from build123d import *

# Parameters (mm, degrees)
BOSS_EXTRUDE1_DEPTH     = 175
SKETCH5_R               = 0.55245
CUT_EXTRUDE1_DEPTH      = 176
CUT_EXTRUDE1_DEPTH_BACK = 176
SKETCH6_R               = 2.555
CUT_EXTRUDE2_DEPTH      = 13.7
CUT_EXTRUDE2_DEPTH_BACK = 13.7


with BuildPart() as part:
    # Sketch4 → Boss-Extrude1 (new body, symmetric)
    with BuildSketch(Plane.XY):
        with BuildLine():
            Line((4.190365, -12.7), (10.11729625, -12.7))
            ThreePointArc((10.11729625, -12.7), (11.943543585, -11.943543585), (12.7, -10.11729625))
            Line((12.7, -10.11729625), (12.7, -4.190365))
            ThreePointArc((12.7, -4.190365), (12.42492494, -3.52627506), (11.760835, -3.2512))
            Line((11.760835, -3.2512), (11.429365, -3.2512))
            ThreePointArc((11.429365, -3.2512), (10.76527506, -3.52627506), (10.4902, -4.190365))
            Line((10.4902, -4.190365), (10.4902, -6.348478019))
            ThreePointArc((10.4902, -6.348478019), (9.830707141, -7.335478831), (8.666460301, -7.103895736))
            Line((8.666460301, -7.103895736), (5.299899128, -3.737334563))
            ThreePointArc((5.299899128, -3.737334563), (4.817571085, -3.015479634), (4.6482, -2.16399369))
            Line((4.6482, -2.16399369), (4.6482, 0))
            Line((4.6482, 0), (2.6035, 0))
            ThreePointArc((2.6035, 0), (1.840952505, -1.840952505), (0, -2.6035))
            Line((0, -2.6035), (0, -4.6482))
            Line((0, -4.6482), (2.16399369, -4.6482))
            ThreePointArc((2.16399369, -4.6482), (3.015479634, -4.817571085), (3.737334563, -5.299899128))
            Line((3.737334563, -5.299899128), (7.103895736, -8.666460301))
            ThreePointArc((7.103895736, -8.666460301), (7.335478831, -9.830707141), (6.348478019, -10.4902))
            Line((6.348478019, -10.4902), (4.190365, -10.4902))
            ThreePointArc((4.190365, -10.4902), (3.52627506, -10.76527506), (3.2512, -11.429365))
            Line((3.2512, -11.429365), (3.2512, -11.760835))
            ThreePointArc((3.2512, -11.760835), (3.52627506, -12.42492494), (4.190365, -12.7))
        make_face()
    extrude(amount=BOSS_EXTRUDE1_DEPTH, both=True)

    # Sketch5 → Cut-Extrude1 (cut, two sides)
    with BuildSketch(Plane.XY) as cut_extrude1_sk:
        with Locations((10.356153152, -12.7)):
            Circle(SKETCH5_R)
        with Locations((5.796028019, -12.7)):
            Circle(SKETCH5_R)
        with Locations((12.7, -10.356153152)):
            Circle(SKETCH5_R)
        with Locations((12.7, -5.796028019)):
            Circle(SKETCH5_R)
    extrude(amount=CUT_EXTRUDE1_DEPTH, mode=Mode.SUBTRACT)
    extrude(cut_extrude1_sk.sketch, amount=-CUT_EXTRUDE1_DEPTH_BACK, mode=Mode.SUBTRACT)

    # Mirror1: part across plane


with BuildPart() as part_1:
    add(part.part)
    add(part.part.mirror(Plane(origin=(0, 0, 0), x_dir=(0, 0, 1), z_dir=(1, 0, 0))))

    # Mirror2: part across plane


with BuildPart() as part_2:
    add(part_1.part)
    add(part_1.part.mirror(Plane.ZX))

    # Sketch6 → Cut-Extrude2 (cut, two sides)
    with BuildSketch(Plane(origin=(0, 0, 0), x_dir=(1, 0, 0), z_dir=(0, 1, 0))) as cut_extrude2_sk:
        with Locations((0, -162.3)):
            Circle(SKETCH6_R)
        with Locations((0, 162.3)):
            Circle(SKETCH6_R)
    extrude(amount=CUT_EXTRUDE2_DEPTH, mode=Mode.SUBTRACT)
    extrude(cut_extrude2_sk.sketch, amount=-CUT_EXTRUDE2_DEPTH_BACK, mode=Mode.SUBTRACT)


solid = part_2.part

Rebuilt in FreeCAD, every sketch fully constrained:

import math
import FreeCAD as App
import Part
import Sketcher

V = App.Vector
Q = App.Units.Quantity

doc = App.newDocument("Part")
body = doc.addObject("PartDesign::Body", "Body")

# Sketch on XY plane
sketch1 = body.newObject("Sketcher::SketchObject", "Sketch")
sketch1.AttachmentSupport = (doc.getObject("XY_Plane"), [""])
sketch1.MapMode = "FlatFace"
sketch1.addGeometry([
    Part.LineSegment(V(4.19, -12.7, 0), V(10.12, -12.7, 0)),  # 0
    Part.ArcOfCircle(Part.Circle(V(10.12, -10.12, 0), V(0, 0, 1), 2.58), math.radians(-90), math.radians(0)),  # 1
    Part.LineSegment(V(12.7, -10.12, 0), V(12.7, -4.19, 0)),  # 2
    Part.ArcOfCircle(Part.Circle(V(11.76, -4.19, 0), V(0, 0, 1), 0.94), math.radians(0), math.radians(90)),  # 3
    Part.LineSegment(V(11.76, -3.25, 0), V(11.43, -3.25, 0)),  # 4
    Part.ArcOfCircle(Part.Circle(V(11.43, -4.19, 0), V(0, 0, 1), 0.94), math.radians(90), math.radians(180)),  # 5
    Part.LineSegment(V(10.49, -4.19, 0), V(10.49, -6.35, 0)),  # 6
    Part.ArcOfCircle(Part.Circle(V(9.42, -6.35, 0), V(0, 0, 1), 1.07), math.radians(-135), math.radians(0)),  # 7
    Part.LineSegment(V(8.67, -7.1, 0), V(5.3, -3.74, 0)),  # 8
    Part.ArcOfCircle(Part.Circle(V(6.87, -2.16, 0), V(0, 0, 1), 2.23), math.radians(-180), math.radians(-135)),  # 9
    Part.LineSegment(V(4.65, -2.16, 0), V(4.65, 0, 0)),  # 10
    Part.LineSegment(V(4.65, 0, 0), V(2.6, 0, 0)),  # 11
    Part.ArcOfCircle(Part.Circle(V(0, 0, 0), V(0, 0, 1), 2.6), math.radians(-90), math.radians(0)),  # 12
    Part.LineSegment(V(0, -2.6, 0), V(0, -4.65, 0)),  # 13
    Part.LineSegment(V(0, -4.65, 0), V(2.16, -4.65, 0)),  # 14
    Part.ArcOfCircle(Part.Circle(V(2.16, -6.87, 0), V(0, 0, 1), 2.23), math.radians(45), math.radians(90)),  # 15
    Part.LineSegment(V(3.74, -5.3, 0), V(7.1, -8.67, 0)),  # 16
    Part.ArcOfCircle(Part.Circle(V(6.35, -9.42, 0), V(0, 0, 1), 1.07), math.radians(-90), math.radians(45)),  # 17
    Part.LineSegment(V(6.35, -10.49, 0), V(4.19, -10.49, 0)),  # 18
    Part.ArcOfCircle(Part.Circle(V(4.19, -11.43, 0), V(0, 0, 1), 0.94), math.radians(90), math.radians(180)),  # 19
    Part.LineSegment(V(3.25, -11.43, 0), V(3.25, -11.76, 0)),  # 20
    Part.ArcOfCircle(Part.Circle(V(4.19, -11.76, 0), V(0, 0, 1), 0.94), math.radians(-180), math.radians(-90)),  # 21
], False)
sketch1.addConstraint([
    Sketcher.Constraint("Tangent", 0, 2, 1, 1),
    Sketcher.Constraint("Tangent", 1, 2, 2, 1),
    Sketcher.Constraint("Tangent", 2, 2, 3, 1),
    Sketcher.Constraint("Tangent", 3, 2, 4, 1),
    Sketcher.Constraint("Tangent", 4, 2, 5, 1),
    Sketcher.Constraint("Tangent", 5, 2, 6, 1),
    Sketcher.Constraint("Tangent", 6, 2, 7, 2),
    Sketcher.Constraint("Tangent", 7, 1, 8, 1),
    Sketcher.Constraint("Tangent", 8, 2, 9, 2),
    Sketcher.Constraint("Tangent", 9, 1, 10, 1),
    Sketcher.Constraint("Coincident", 10, 2, 11, 1),
    Sketcher.Constraint("Coincident", 11, 2, 12, 2),
    Sketcher.Constraint("Coincident", 12, 1, 13, 1),
    Sketcher.Constraint("Coincident", 13, 2, 14, 1),
    Sketcher.Constraint("Tangent", 14, 2, 15, 2),
    Sketcher.Constraint("Tangent", 15, 1, 16, 1),
    Sketcher.Constraint("Tangent", 16, 2, 17, 2),
    Sketcher.Constraint("Tangent", 17, 1, 18, 1),
    Sketcher.Constraint("Tangent", 18, 2, 19, 1),
    Sketcher.Constraint("Tangent", 19, 2, 20, 1),
    Sketcher.Constraint("Tangent", 20, 2, 21, 1),
    Sketcher.Constraint("Tangent", 21, 2, 0, 1),
    Sketcher.Constraint("Horizontal", 0),
    Sketcher.Constraint("Vertical", 2),
    Sketcher.Constraint("Horizontal", 4),
    Sketcher.Constraint("Vertical", 6),
    Sketcher.Constraint("Vertical", 10),
    Sketcher.Constraint("Horizontal", 11),
    Sketcher.Constraint("Vertical", 13),
    Sketcher.Constraint("Horizontal", 14),
    Sketcher.Constraint("Horizontal", 18),
    Sketcher.Constraint("Vertical", 20),
    Sketcher.Constraint("Coincident", 12, 3, -1, 1),
    Sketcher.Constraint("Equal", 3, 5),
    Sketcher.Constraint("Equal", 9, 15),
    Sketcher.Constraint("Equal", 7, 17),
    Sketcher.Constraint("Equal", 5, 19),
    Sketcher.Constraint("Equal", 19, 21),
    Sketcher.Constraint("PointOnObject", 10, 2, -1),
    Sketcher.Constraint("PointOnObject", 12, 1, -2),
    Sketcher.Constraint("Parallel", 8, 16),
    Sketcher.Constraint("Equal", 0, 2),
    Sketcher.Constraint("Equal", 18, 6),
    Sketcher.Constraint("Equal", 14, 10),
    Sketcher.Constraint("Equal", 11, 13),
    Sketcher.Constraint("Equal", 4, 20),
    Sketcher.Constraint("Equal", 8, 16),
    Sketcher.Constraint("DistanceY", 0, 2, -1, 1, Q("12.7 mm")),
    Sketcher.Constraint("Radius", 12, Q("2.6035 mm")),
    Sketcher.Constraint("Radius", 7, Q("1.068322 mm")),
    Sketcher.Constraint("Radius", 9, Q("2.22504 mm")),
    Sketcher.Constraint("DistanceX", 11, 2, 11, 1, Q("2.0447 mm")),
    Sketcher.Constraint("Radius", 1, Q("2.582704 mm")),
    Sketcher.Constraint("Radius", 3, Q("0.939165 mm")),
    Sketcher.Constraint("DistanceX", 9, 1, 5, 2, Q("5.842 mm")),
    Sketcher.Constraint("DistanceX", 0, 1, 0, 2, Q("5.926931 mm")),
    Sketcher.Constraint("DistanceX", 17, 3, 7, 3, Q("3.0734 mm")),
])
pad1 = body.newObject("PartDesign::Pad", "Pad")
pad1.Profile = sketch1
pad1.Length = 350
pad1.Midplane = True

# Sketch on XY plane
sketch2 = body.newObject("Sketcher::SketchObject", "Sketch001")
sketch2.AttachmentSupport = (doc.getObject("XY_Plane"), [""])
sketch2.MapMode = "FlatFace"
sketch2.addGeometry([
    Part.Circle(V(10.4, -12.7, 0), V(0, 0, 1), 0.6),
    Part.Circle(V(5.8, -12.7, 0), V(0, 0, 1), 0.6),
    Part.Circle(V(12.7, -10.4, 0), V(0, 0, 1), 0.6),
    Part.Circle(V(12.7, -5.8, 0), V(0, 0, 1), 0.6),
], False)
sketch2.addConstraint([
    Sketcher.Constraint("Equal", 0, 1),
    Sketcher.Constraint("Equal", 1, 2),
    Sketcher.Constraint("Equal", 2, 3),
    Sketcher.Constraint("Horizontal", 0, 3, 1, 3),
    Sketcher.Constraint("Vertical", 2, 3, 3, 3),
    Sketcher.Constraint("Diameter", 0, Q("1.1049 mm")),
    Sketcher.Constraint("DistanceY", 0, 3, -1, 1, Q("12.7 mm")),
    Sketcher.Constraint("DistanceX", -1, 1, 2, 3, Q("12.7 mm")),
    Sketcher.Constraint("DistanceX", -1, 1, 1, 3, Q("5.796028 mm")),
    Sketcher.Constraint("DistanceY", 3, 3, -1, 1, Q("5.796028 mm")),
    Sketcher.Constraint("DistanceX", -1, 1, 0, 3, Q("10.356153 mm")),
    Sketcher.Constraint("DistanceY", 2, 3, -1, 1, Q("10.356153 mm")),
])
pocket1 = body.newObject("PartDesign::Pocket", "Pocket")
pocket1.Profile = sketch2
pocket1.Type = "ThroughAll"
pocket1.Midplane = True
body2 = doc.addObject("PartDesign::Body", "Body001")
doc.recompute()

body2.BaseFeature = body
doc.recompute()

mirroring = doc.addObject("Part::Mirroring", "Mirroring")
mirroring.Source = body
mirroring.Base = V(0, 0, 0)
mirroring.Normal = V(1, 0, 0)
body3 = doc.addObject("PartDesign::Body", "Body002")
body3.BaseFeature = mirroring
boolean = body2.newObject("PartDesign::Boolean", "Boolean")
boolean.Type = "Fuse"
boolean.addObjects([body3])
doc.recompute()
body4 = doc.addObject("PartDesign::Body", "Body003")
doc.recompute()

body4.BaseFeature = body2
doc.recompute()

mirroring2 = doc.addObject("Part::Mirroring", "Mirroring001")
mirroring2.Source = body2
mirroring2.Base = V(0, 0, 0)
mirroring2.Normal = V(0, 1, 0)
body5 = doc.addObject("PartDesign::Body", "Body004")
body5.BaseFeature = mirroring2
boolean2 = body4.newObject("PartDesign::Boolean", "Boolean001")
boolean2.Type = "Fuse"
boolean2.addObjects([body5])
doc.recompute()

# Sketch on XZ plane
sketch3 = body4.newObject("Sketcher::SketchObject", "Sketch002")
sketch3.AttachmentSupport = (doc.getObject("XZ_Plane003"), [""])
sketch3.MapMode = "FlatFace"
sketch3.addGeometry([
    Part.Circle(V(0, 162.3, 0), V(0, 0, 1), 2.6),
    Part.Circle(V(0, -162.3, 0), V(0, 0, 1), 2.6),
], False)
sketch3.addConstraint([
    Sketcher.Constraint("Equal", 0, 1),
    Sketcher.Constraint("Symmetric", 0, 3, 1, 3, -1, 1),
    Sketcher.Constraint("PointOnObject", 0, 3, -2),
    Sketcher.Constraint("Diameter", 0, Q("5.11 mm")),
    Sketcher.Constraint("DistanceY", -1, 1, 0, 3, Q("162.3 mm")),
])
pocket2 = body4.newObject("PartDesign::Pocket", "Pocket001")
pocket2.Profile = sketch3
pocket2.Type = "ThroughAll"
pocket2.Midplane = True
mirroring.Visibility = False
mirroring2.Visibility = False

doc.recompute()
